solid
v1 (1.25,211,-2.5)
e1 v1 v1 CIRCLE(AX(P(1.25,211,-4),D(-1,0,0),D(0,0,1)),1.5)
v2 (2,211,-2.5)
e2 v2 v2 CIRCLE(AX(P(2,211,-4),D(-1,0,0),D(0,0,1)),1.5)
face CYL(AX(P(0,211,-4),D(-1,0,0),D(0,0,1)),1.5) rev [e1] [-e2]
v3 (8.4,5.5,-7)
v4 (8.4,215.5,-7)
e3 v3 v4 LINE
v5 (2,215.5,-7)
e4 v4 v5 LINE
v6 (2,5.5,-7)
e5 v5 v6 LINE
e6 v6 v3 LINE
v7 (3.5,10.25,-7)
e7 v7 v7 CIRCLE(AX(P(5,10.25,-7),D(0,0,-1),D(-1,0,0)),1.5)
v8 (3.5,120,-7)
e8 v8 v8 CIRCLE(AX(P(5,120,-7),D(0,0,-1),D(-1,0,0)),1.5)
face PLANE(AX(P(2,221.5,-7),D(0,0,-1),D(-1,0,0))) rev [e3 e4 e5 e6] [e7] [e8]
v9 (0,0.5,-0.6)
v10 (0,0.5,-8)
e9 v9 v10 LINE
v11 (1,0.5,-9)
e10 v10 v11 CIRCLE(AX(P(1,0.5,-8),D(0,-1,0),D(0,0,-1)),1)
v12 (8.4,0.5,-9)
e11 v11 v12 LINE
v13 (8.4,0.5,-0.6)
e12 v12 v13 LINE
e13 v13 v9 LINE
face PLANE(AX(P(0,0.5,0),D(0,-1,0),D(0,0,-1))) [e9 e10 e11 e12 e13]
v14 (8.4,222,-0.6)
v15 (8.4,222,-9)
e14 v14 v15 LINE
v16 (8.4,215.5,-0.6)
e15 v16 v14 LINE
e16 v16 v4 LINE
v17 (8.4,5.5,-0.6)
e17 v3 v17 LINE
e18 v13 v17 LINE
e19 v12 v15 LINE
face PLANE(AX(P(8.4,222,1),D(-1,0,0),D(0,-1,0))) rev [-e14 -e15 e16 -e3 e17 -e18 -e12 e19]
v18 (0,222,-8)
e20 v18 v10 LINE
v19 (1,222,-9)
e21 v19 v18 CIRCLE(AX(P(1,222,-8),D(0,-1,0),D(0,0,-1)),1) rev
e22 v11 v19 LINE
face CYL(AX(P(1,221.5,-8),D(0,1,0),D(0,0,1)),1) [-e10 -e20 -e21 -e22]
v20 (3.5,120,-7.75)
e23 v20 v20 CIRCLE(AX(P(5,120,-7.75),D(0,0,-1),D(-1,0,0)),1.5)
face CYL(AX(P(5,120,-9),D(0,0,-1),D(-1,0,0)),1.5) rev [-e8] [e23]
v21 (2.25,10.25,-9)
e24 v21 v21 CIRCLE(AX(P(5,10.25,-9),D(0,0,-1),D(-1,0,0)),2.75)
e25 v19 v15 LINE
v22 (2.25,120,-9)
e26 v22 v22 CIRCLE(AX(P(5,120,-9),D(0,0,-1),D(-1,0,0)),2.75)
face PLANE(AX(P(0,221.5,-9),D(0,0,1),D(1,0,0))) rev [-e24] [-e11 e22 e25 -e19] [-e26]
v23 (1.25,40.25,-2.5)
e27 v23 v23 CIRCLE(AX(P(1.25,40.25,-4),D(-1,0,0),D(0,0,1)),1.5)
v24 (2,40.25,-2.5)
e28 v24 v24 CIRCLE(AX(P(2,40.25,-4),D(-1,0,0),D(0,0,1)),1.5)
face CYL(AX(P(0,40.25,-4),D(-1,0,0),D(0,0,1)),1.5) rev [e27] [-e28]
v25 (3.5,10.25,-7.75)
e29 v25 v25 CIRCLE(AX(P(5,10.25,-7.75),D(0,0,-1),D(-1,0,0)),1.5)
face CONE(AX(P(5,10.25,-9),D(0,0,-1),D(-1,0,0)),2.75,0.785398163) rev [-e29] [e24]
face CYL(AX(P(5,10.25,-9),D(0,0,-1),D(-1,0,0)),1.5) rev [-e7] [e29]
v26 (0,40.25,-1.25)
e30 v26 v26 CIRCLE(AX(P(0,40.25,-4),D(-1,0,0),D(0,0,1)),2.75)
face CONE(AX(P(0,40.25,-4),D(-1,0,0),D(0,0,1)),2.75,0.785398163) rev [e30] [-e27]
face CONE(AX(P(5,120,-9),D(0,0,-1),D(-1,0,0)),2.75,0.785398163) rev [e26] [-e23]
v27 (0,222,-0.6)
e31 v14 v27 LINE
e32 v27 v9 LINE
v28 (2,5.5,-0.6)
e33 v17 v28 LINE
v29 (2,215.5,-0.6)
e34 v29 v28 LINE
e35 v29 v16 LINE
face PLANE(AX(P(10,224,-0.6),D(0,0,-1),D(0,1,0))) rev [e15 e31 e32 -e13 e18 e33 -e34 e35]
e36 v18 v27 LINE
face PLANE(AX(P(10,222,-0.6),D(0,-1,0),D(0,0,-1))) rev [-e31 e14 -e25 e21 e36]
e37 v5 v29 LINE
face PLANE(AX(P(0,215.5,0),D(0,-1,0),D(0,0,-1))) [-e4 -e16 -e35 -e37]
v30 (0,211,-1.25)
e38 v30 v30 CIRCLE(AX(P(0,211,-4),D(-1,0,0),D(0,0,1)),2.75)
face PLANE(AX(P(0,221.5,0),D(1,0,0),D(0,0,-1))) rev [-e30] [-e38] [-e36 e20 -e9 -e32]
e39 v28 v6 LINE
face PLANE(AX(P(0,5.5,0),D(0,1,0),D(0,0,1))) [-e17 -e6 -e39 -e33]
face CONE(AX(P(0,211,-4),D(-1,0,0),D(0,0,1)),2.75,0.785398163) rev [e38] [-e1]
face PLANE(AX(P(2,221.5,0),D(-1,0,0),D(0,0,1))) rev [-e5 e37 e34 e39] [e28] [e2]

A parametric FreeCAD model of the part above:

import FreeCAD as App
import Part
import Sketcher

V = App.Vector
Q = App.Units.Quantity


def edges_at(feature, points):
    """Names of the edges that pass closest to the given points."""
    edges = feature.Shape.Edges
    near = lambda p: min(range(len(edges)), key=lambda i: edges[i].distToShape(Part.Vertex(*p))[0])
    return sorted({f"Edge{near(p) + 1}" for p in points})


def add_polygon(sketch, points):
    """Adds a closed chain of lines whose ends are joined by coincident constraints."""
    first, n = sketch.GeometryCount, len(points)
    for a, b in zip(points, points[1:] + points[:1]):
        sketch.addGeometry(Part.LineSegment(App.Vector(*a, 0), App.Vector(*b, 0)), False)
    for i in range(n):
        sketch.addConstraint(Sketcher.Constraint("Coincident", first + i, 2, first + (i + 1) % n, 1))

doc = App.newDocument("Part")
body = doc.addObject("PartDesign::Body", "Body")

# Sketch on XZ plane
sketch1 = body.newObject("Sketcher::SketchObject", "Sketch")
sketch1.AttachmentSupport = (doc.getObject("XZ_Plane"), [""])
sketch1.MapMode = "FlatFace"
add_polygon(sketch1, [(0, -9), (0, 0), (2, 0), (2, -7), (9, -7), (9, -9)])  # lines 0-5
sketch1.addConstraint([
    Sketcher.Constraint("Vertical", 0),
    Sketcher.Constraint("Horizontal", 1),
    Sketcher.Constraint("Vertical", 2),
    Sketcher.Constraint("Horizontal", 3),
    Sketcher.Constraint("Vertical", 4),
    Sketcher.Constraint("Horizontal", 5),
    Sketcher.Constraint("Coincident", 0, 2, -1, 1),
    Sketcher.Constraint("Equal", 5, 0),
    Sketcher.Constraint("Equal", 3, 2),
    Sketcher.Constraint("DistanceX", 1, 1, 1, 2, Q("2 mm")),
    Sketcher.Constraint("DistanceX", 3, 1, 3, 2, Q("7 mm")),
])
pad1 = body.newObject("PartDesign::Pad", "Pad")
pad1.Profile = sketch1
pad1.Length = 221.5
pad1.Reversed = True

# Sketch on YZ plane
sketch2 = body.newObject("Sketcher::SketchObject", "Sketch001")
sketch2.AttachmentSupport = (doc.getObject("YZ_Plane"), [""])
sketch2.MapMode = "FlatFace"
sketch2.addGeometry([
    Part.Circle(V(211, -4, 0), V(0, 0, 1), 1.5),
    Part.Circle(V(40.2, -4, 0), V(0, 0, 1), 1.5),
], False)
sketch2.addConstraint([
    Sketcher.Constraint("Equal", 0, 1),
    Sketcher.Constraint("Horizontal", 0, 3, 1, 3),
    Sketcher.Constraint("Diameter", 0, Q("3 mm")),
    Sketcher.Constraint("DistanceX", -1, 1, 0, 3, Q("211 mm")),
    Sketcher.Constraint("DistanceY", 0, 3, -1, 1, Q("4 mm")),
    Sketcher.Constraint("DistanceX", -1, 1, 1, 3, Q("40.25 mm")),
])
doc.recompute()
hole = body.newObject("PartDesign::Hole", "Hole")
hole.Profile = sketch2
hole.ThreadType = "None"
hole.Diameter = 3
hole.DepthType = "ThroughAll"
hole.HoleCutType = "Countersink"
hole.HoleCutDiameter = 5.5
hole.HoleCutCountersinkAngle = 90
hole.Reversed = True

# Sketch on XY plane
sketch3 = body.newObject("Sketcher::SketchObject", "Sketch002")
sketch3.AttachmentSupport = (doc.getObject("XY_Plane"), [""])
sketch3.MapMode = "FlatFace"
sketch3.AttachmentOffset = App.Placement(V(0, 0, -9), App.Rotation())
sketch3.addGeometry([
    Part.Circle(V(5, 10.2, 0), V(0, 0, 1), 1.5),
    Part.Circle(V(5, 120, 0), V(0, 0, 1), 1.5),
], False)
sketch3.addConstraint([
    Sketcher.Constraint("Equal", 0, 1),
    Sketcher.Constraint("Vertical", 0, 3, 1, 3),
    Sketcher.Constraint("Diameter", 0, Q("3 mm")),
    Sketcher.Constraint("DistanceX", -1, 1, 0, 3, Q("5 mm")),
    Sketcher.Constraint("DistanceY", -1, 1, 1, 3, Q("120 mm")),
    Sketcher.Constraint("DistanceY", -1, 1, 0, 3, Q("10.25 mm")),
])
doc.recompute()
hole2 = body.newObject("PartDesign::Hole", "Hole001")
hole2.Profile = sketch3
hole2.ThreadType = "None"
hole2.Diameter = 3
hole2.DepthType = "ThroughAll"
hole2.HoleCutType = "Countersink"
hole2.HoleCutDiameter = 5.5
hole2.HoleCutCountersinkAngle = 90
hole2.Reversed = True

# Sketch on XZ plane
sketch4 = body.newObject("Sketcher::SketchObject", "Sketch003")
sketch4.AttachmentSupport = (doc.getObject("XZ_Plane"), [""])
sketch4.MapMode = "FlatFace"
add_polygon(sketch4, [(1, 0), (1, -7), (9, -7), (9, 0)])  # lines 0-3
sketch4.addConstraint([
    Sketcher.Constraint("Vertical", 0),
    Sketcher.Constraint("Horizontal", 1),
    Sketcher.Constraint("Vertical", 2),
    Sketcher.Constraint("Horizontal", 3),
    Sketcher.Constraint("PointOnObject", 2, 2, -1),
    Sketcher.Constraint("DistanceX", 1, 1, 1, 2, Q("8 mm")),
    Sketcher.Constraint("DistanceY", 0, 2, 0, 1, Q("7 mm")),
    Sketcher.Constraint("DistanceX", -1, 1, 0, 2, Q("1 mm")),
])
pad2 = body.newObject("PartDesign::Pad", "Pad001")
pad2.Profile = sketch4
pad2.Length = 5.5
pad2.Reversed = True

# Sketch on XZ plane
sketch5 = body.newObject("Sketcher::SketchObject", "Sketch004")
sketch5.AttachmentSupport = (doc.getObject("XZ_Plane"), [""])
sketch5.MapMode = "FlatFace"
sketch5.AttachmentOffset = App.Placement(V(0, 0, -221.5), App.Rotation())
add_polygon(sketch5, [(0, -8), (1, -9), (0, -9)])  # lines 0-2
sketch5.addConstraint([
    Sketcher.Constraint("Horizontal", 1),
    Sketcher.Constraint("Vertical", 2),
    Sketcher.Constraint("PointOnObject", 1, 2, -2),
    Sketcher.Constraint("Equal", 1, 2),
    Sketcher.Constraint("DistanceX", 1, 2, 1, 1, Q("1 mm")),
    Sketcher.Constraint("DistanceY", 0, 2, -1, 1, Q("9 mm")),
])
pocket1 = body.newObject("PartDesign::Pocket", "Pocket")
pocket1.Profile = sketch5
pocket1.Length = 359
pocket1.Reversed = True

# Sketch on XZ plane
sketch6 = body.newObject("Sketcher::SketchObject", "Sketch005")
sketch6.AttachmentSupport = (doc.getObject("XZ_Plane"), [""])
sketch6.MapMode = "FlatFace"
add_polygon(sketch6, [(9, 0), (0, 0), (0, -8), (1, -9), (9, -9)])  # lines 0-4
sketch6.addConstraint([
    Sketcher.Constraint("Horizontal", 0),
    Sketcher.Constraint("Vertical", 1),
    Sketcher.Constraint("Horizontal", 3),
    Sketcher.Constraint("Vertical", 4),
    Sketcher.Constraint("Coincident", 0, 2, -1, 1),
    Sketcher.Constraint("Equal", 3, 1),
    Sketcher.Constraint("Equal", 0, 4),
    Sketcher.Constraint("DistanceX", 0, 2, 0, 1, Q("9 mm")),
    Sketcher.Constraint("DistanceX", 3, 1, 3, 2, Q("8 mm")),
])
pad3 = body.newObject("PartDesign::Pad", "Pad002")
pad3.Profile = sketch6
pad3.Length = 3

# Sketch on XZ plane
sketch7 = body.newObject("Sketcher::SketchObject", "Sketch006")
sketch7.AttachmentSupport = (doc.getObject("XZ_Plane"), [""])
sketch7.MapMode = "FlatFace"
sketch7.AttachmentOffset = App.Placement(V(0, 0, -221.5), App.Rotation())
add_polygon(sketch7, [(0, 0), (9, 0), (9, -9), (1, -9), (0, -8)])  # lines 0-4
sketch7.addConstraint([
    Sketcher.Constraint("Horizontal", 0),
    Sketcher.Constraint("Vertical", 1),
    Sketcher.Constraint("Horizontal", 2),
    Sketcher.Constraint("Vertical", 4),
    Sketcher.Constraint("Coincident", 4, 2, -1, 1),
    Sketcher.Constraint("Equal", 0, 1),
    Sketcher.Constraint("Equal", 2, 4),
    Sketcher.Constraint("DistanceX", 0, 1, 0, 2, Q("9 mm")),
    Sketcher.Constraint("DistanceX", 2, 2, 2, 1, Q("8 mm")),
])
pad4 = body.newObject("PartDesign::Pad", "Pad003")
pad4.Profile = sketch7
pad4.Type = "TwoLengths"
pad4.Length = 2.5
pad4.Length2 = 6
pad4.Reversed = True

# Sketch on YZ plane
sketch8 = body.newObject("Sketcher::SketchObject", "Sketch007")
sketch8.AttachmentSupport = (doc.getObject("YZ_Plane"), [""])
sketch8.MapMode = "FlatFace"
add_polygon(sketch8, [(224, -0.6), (-3, -0.6), (-3, 0), (224, 0)])  # lines 0-3
sketch8.addConstraint([
    Sketcher.Constraint("Horizontal", 0),
    Sketcher.Constraint("Vertical", 1),
    Sketcher.Constraint("Horizontal", 2),
    Sketcher.Constraint("Vertical", 3),
    Sketcher.Constraint("PointOnObject", 1, 2, -1),
    Sketcher.Constraint("DistanceX", 0, 2, 0, 1, Q("227 mm")),
    Sketcher.Constraint("DistanceY", 1, 1, 1, 2, Q("0.6 mm")),
    Sketcher.Constraint("DistanceX", 0, 2, -1, 1, Q("3 mm")),
])
pocket2 = body.newObject("PartDesign::Pocket", "Pocket001")
pocket2.Profile = sketch8
pocket2.Length = 10
pocket2.Reversed = True

# Sketch on YZ plane
sketch9 = body.newObject("Sketcher::SketchObject", "Sketch008")
sketch9.AttachmentSupport = (doc.getObject("YZ_Plane"), [""])
sketch9.MapMode = "FlatFace"
add_polygon(sketch9, [(224, -16.2), (222, -16.2), (222, -0.6), (224, -0.6)])  # lines 0-3
sketch9.addConstraint([
    Sketcher.Constraint("Horizontal", 0),
    Sketcher.Constraint("Vertical", 1),
    Sketcher.Constraint("Horizontal", 2),
    Sketcher.Constraint("Vertical", 3),
    Sketcher.Constraint("DistanceX", 0, 2, 0, 1, Q("2 mm")),
    Sketcher.Constraint("DistanceX", -1, 1, 0, 2, Q("222 mm")),
    Sketcher.Constraint("DistanceY", 1, 2, -1, 1, Q("0.6 mm")),
    Sketcher.Constraint("DistanceY", 1, 1, 1, 2, Q("15.604741 mm")),
])
pocket3 = body.newObject("PartDesign::Pocket", "Pocket002")
pocket3.Profile = sketch9
pocket3.Length = 10
pocket3.Reversed = True

# Sketch on XY plane
sketch10 = body.newObject("Sketcher::SketchObject", "Sketch009")
sketch10.AttachmentSupport = (doc.getObject("XY_Plane"), [""])
sketch10.MapMode = "FlatFace"
sketch10.AttachmentOffset = App.Placement(V(0, 0, -9), App.Rotation())
add_polygon(sketch10, [(9, 222), (9, -3), (8.4, -3), (8.4, 222)])  # lines 0-3
sketch10.addConstraint([
    Sketcher.Constraint("Vertical", 0),
    Sketcher.Constraint("Horizontal", 1),
    Sketcher.Constraint("Vertical", 2),
    Sketcher.Constraint("Horizontal", 3),
    Sketcher.Constraint("DistanceY", 0, 2, 0, 1, Q("225 mm")),
    Sketcher.Constraint("DistanceX", 1, 2, 1, 1, Q("0.6 mm")),
    Sketcher.Constraint("DistanceX", -1, 1, 0, 2, Q("9 mm")),
    Sketcher.Constraint("DistanceY", 0, 2, -1, 1, Q("3 mm")),
])
pocket4 = body.newObject("PartDesign::Pocket", "Pocket003")
pocket4.Profile = sketch10
pocket4.Length = 10
pocket4.Reversed = True

# Sketch on XY plane
sketch11 = body.newObject("Sketcher::SketchObject", "Sketch010")
sketch11.AttachmentSupport = (doc.getObject("XY_Plane"), [""])
sketch11.MapMode = "FlatFace"
sketch11.AttachmentOffset = App.Placement(V(0, 0, -9), App.Rotation())
add_polygon(sketch11, [(8, 2), (8, -3), (0, -3), (0, 2)])  # lines 0-3
sketch11.addConstraint([
    Sketcher.Constraint("Vertical", 0),
    Sketcher.Constraint("Horizontal", 1),
    Sketcher.Constraint("Vertical", 2),
    Sketcher.Constraint("Horizontal", 3),
    Sketcher.Constraint("PointOnObject", 1, 2, -2),
    Sketcher.Constraint("DistanceX", 1, 2, 1, 1, Q("8.4 mm")),
    Sketcher.Constraint("DistanceY", 0, 2, 0, 1, Q("5.5 mm")),
    Sketcher.Constraint("DistanceY", 0, 2, -1, 1, Q("3 mm")),
])
pocket5 = body.newObject("PartDesign::Pocket", "Pocket004")
pocket5.Profile = sketch11
pocket5.Length = 10
pocket5.Reversed = True

# Sketch on XZ plane
sketch12 = body.newObject("Sketcher::SketchObject", "Sketch011")
sketch12.AttachmentSupport = (doc.getObject("XZ_Plane"), [""])
sketch12.MapMode = "FlatFace"
sketch12.AttachmentOffset = App.Placement(V(0, 0, -2.5), App.Rotation())
add_polygon(sketch12, [(8.4, -9), (8.4, -0.6), (0, -0.6), (0, -8), (1, -9)])  # lines 0-4
sketch12.addConstraint([
    Sketcher.Constraint("Vertical", 0),
    Sketcher.Constraint("Horizontal", 1),
    Sketcher.Constraint("Vertical", 2),
    Sketcher.Constraint("Horizontal", 4),
    Sketcher.Constraint("PointOnObject", 1, 2, -2),
    Sketcher.Constraint("Equal", 1, 0),
    Sketcher.Constraint("Equal", 4, 2),
    Sketcher.Constraint("DistanceX", 1, 2, 1, 1, Q("8.4 mm")),
    Sketcher.Constraint("DistanceX", 4, 1, 4, 2, Q("7.4 mm")),
    Sketcher.Constraint("DistanceY", 2, 2, -1, 1, Q("8 mm")),
])
pad5 = body.newObject("PartDesign::Pad", "Pad004")
pad5.Profile = sketch12
pad5.Length = 2

# Sketch on XZ plane
sketch13 = body.newObject("Sketcher::SketchObject", "Sketch012")
sketch13.AttachmentSupport = (doc.getObject("XZ_Plane"), [""])
sketch13.MapMode = "FlatFace"
sketch13.AttachmentOffset = App.Placement(V(0, 0, -222), App.Rotation())
add_polygon(sketch13, [(0, -8), (1, -9), (0, -9)])  # lines 0-2
sketch13.addConstraint([
    Sketcher.Constraint("Horizontal", 1),
    Sketcher.Constraint("Vertical", 2),
    Sketcher.Constraint("PointOnObject", 1, 2, -2),
    Sketcher.Constraint("Equal", 1, 2),
    Sketcher.Constraint("DistanceX", 1, 2, 1, 1, Q("1 mm")),
    Sketcher.Constraint("DistanceY", 0, 2, -1, 1, Q("9 mm")),
])
pad6 = body.newObject("PartDesign::Pad", "Pad005")
pad6.Profile = sketch13
pad6.Length = 221.5
doc.recompute()

fillet = body.newObject("PartDesign::Fillet", "Fillet")
fillet.Base = (pad6, edges_at(pad6, [(0, 111.25, -9)]))
fillet.Radius = 1

doc.recompute()
